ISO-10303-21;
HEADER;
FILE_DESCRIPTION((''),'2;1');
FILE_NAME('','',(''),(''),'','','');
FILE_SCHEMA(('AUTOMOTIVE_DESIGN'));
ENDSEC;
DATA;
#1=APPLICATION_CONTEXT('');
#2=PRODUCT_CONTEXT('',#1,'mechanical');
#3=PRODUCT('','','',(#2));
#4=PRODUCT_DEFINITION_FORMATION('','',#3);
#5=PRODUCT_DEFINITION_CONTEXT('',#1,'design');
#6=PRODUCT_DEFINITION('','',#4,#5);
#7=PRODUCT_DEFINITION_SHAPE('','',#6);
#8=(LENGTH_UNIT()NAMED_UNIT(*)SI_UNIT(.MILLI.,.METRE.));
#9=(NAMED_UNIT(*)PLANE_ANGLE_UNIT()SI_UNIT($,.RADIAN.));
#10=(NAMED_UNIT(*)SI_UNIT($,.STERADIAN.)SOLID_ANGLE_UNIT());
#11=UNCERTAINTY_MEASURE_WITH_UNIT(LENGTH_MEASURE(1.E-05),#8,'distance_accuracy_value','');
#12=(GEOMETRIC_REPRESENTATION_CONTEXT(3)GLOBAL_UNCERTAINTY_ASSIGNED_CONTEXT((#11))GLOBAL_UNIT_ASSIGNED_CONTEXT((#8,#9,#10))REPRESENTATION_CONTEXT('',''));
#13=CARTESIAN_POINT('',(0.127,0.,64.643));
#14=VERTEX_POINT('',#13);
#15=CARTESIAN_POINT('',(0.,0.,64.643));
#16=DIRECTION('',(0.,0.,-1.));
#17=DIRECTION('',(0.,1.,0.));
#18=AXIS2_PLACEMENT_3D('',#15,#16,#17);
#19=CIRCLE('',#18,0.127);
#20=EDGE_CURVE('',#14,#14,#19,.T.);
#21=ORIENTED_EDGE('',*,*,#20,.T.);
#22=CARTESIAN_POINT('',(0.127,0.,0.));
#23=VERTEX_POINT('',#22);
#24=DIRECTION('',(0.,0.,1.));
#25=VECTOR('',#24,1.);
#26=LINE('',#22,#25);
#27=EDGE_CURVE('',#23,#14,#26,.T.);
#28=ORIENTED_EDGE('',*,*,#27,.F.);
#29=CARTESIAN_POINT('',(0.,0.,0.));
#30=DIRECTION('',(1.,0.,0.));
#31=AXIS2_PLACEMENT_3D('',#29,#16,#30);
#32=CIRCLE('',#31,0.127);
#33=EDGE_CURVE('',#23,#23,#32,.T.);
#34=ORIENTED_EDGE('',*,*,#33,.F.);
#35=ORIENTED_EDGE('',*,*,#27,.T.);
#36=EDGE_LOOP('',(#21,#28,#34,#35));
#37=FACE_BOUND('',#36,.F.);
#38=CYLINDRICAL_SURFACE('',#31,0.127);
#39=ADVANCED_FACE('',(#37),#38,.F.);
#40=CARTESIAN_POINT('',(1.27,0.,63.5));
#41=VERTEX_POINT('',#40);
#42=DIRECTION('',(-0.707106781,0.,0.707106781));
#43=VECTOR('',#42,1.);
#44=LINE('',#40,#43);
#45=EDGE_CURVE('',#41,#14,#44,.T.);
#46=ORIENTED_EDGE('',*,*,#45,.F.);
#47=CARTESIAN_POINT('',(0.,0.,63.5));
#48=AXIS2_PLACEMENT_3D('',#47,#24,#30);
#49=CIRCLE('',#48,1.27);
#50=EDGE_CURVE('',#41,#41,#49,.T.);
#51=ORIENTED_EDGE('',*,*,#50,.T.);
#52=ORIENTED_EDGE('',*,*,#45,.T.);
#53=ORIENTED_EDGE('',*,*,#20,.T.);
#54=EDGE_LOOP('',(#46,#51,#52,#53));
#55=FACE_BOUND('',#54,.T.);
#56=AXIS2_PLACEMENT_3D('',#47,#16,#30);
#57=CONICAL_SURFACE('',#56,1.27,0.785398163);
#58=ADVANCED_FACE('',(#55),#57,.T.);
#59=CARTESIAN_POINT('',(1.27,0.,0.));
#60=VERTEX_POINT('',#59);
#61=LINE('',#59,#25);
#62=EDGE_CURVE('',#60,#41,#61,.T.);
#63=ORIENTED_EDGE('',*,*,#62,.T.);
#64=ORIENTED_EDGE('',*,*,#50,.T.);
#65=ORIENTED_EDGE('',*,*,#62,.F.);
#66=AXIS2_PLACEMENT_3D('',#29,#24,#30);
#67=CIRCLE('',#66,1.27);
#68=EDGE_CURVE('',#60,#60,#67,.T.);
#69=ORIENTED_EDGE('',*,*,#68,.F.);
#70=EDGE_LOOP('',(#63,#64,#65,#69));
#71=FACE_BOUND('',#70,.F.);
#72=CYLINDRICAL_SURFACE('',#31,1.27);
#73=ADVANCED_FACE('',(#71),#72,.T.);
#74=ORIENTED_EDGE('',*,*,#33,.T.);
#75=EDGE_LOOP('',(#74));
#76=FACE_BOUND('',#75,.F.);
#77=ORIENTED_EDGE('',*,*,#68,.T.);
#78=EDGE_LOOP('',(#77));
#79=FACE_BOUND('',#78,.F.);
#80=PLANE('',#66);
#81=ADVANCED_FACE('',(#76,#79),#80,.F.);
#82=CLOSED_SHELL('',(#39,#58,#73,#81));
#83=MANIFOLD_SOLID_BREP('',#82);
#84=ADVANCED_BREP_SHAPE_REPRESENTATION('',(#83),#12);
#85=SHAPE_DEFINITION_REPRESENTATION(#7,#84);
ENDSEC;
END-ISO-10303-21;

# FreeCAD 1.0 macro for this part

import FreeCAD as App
import Part
import Sketcher
from FreeCAD import Vector
Q = App.Units.Quantity


def edges_at(feature, points):
    """Names of the edges that pass closest to the given points."""
    edges = feature.Shape.Edges
    near = lambda p: min(range(len(edges)), key=lambda i: edges[i].distToShape(Part.Vertex(*p))[0])
    return sorted({f"Edge{near(p) + 1}" for p in points})

doc = App.newDocument("Part")
params = doc.addObject("Spreadsheet::Sheet", "Params")
for row, (alias, value) in enumerate([
    ("sketch1_diameter", "0.1 in"),
    ("pad1_length", "2.55 in"),
    ("chamfer_size", "0.05 in"),
    ("sketch2_diameter", "0.01 in"),
], start=1):
    params.set(f"A{row}", alias)
    params.set(f"B{row}", "=" + value)
    params.setAlias(f"B{row}", alias)

body = doc.addObject("PartDesign::Body", "Body")

sketch1 = body.newObject("Sketcher::SketchObject", "Sketch")
sketch1.AttachmentSupport = (doc.getObject("XY_Plane"), [""])
sketch1.MapMode = "FlatFace"
sketch1.addGeometry(Part.Circle(Vector(0, 0, 0), Vector(0, 0, 1), 1.3), False)
sketch1.addConstraint([
    Sketcher.Constraint("Coincident", 0, 3, -1, 1),
    Sketcher.Constraint("Diameter", 0, Q("0.1 in")),
])
sketch1.setExpression("Constraints[1]", "Params.sketch1_diameter")
pad1 = body.newObject("PartDesign::Pad", "Pad")
pad1.Profile = sketch1
pad1.setExpression("Length", "Params.pad1_length")
doc.recompute()

chamfer = body.newObject("PartDesign::Chamfer", "Chamfer")
chamfer.Base = (pad1, edges_at(pad1, [(-1.27, 0, 64.77)]))
chamfer.setExpression("Size", "Params.chamfer_size")

sketch2 = body.newObject("Sketcher::SketchObject", "Sketch001")
sketch2.AttachmentSupport = (doc.getObject("XY_Plane"), [""])
sketch2.MapMode = "FlatFace"
sketch2.addGeometry(Part.Circle(Vector(0, 0, 0), Vector(0, 0, 1), 0.13), False)
sketch2.addConstraint([
    Sketcher.Constraint("Coincident", 0, 3, -1, 1),
    Sketcher.Constraint("Diameter", 0, Q("0.01 in")),
])
sketch2.setExpression("Constraints[1]", "Params.sketch2_diameter")
pocket1 = body.newObject("PartDesign::Pocket", "Pocket")
pocket1.Profile = sketch2
pocket1.Type = "ThroughAll"
pocket1.Reversed = True

doc.recompute()
